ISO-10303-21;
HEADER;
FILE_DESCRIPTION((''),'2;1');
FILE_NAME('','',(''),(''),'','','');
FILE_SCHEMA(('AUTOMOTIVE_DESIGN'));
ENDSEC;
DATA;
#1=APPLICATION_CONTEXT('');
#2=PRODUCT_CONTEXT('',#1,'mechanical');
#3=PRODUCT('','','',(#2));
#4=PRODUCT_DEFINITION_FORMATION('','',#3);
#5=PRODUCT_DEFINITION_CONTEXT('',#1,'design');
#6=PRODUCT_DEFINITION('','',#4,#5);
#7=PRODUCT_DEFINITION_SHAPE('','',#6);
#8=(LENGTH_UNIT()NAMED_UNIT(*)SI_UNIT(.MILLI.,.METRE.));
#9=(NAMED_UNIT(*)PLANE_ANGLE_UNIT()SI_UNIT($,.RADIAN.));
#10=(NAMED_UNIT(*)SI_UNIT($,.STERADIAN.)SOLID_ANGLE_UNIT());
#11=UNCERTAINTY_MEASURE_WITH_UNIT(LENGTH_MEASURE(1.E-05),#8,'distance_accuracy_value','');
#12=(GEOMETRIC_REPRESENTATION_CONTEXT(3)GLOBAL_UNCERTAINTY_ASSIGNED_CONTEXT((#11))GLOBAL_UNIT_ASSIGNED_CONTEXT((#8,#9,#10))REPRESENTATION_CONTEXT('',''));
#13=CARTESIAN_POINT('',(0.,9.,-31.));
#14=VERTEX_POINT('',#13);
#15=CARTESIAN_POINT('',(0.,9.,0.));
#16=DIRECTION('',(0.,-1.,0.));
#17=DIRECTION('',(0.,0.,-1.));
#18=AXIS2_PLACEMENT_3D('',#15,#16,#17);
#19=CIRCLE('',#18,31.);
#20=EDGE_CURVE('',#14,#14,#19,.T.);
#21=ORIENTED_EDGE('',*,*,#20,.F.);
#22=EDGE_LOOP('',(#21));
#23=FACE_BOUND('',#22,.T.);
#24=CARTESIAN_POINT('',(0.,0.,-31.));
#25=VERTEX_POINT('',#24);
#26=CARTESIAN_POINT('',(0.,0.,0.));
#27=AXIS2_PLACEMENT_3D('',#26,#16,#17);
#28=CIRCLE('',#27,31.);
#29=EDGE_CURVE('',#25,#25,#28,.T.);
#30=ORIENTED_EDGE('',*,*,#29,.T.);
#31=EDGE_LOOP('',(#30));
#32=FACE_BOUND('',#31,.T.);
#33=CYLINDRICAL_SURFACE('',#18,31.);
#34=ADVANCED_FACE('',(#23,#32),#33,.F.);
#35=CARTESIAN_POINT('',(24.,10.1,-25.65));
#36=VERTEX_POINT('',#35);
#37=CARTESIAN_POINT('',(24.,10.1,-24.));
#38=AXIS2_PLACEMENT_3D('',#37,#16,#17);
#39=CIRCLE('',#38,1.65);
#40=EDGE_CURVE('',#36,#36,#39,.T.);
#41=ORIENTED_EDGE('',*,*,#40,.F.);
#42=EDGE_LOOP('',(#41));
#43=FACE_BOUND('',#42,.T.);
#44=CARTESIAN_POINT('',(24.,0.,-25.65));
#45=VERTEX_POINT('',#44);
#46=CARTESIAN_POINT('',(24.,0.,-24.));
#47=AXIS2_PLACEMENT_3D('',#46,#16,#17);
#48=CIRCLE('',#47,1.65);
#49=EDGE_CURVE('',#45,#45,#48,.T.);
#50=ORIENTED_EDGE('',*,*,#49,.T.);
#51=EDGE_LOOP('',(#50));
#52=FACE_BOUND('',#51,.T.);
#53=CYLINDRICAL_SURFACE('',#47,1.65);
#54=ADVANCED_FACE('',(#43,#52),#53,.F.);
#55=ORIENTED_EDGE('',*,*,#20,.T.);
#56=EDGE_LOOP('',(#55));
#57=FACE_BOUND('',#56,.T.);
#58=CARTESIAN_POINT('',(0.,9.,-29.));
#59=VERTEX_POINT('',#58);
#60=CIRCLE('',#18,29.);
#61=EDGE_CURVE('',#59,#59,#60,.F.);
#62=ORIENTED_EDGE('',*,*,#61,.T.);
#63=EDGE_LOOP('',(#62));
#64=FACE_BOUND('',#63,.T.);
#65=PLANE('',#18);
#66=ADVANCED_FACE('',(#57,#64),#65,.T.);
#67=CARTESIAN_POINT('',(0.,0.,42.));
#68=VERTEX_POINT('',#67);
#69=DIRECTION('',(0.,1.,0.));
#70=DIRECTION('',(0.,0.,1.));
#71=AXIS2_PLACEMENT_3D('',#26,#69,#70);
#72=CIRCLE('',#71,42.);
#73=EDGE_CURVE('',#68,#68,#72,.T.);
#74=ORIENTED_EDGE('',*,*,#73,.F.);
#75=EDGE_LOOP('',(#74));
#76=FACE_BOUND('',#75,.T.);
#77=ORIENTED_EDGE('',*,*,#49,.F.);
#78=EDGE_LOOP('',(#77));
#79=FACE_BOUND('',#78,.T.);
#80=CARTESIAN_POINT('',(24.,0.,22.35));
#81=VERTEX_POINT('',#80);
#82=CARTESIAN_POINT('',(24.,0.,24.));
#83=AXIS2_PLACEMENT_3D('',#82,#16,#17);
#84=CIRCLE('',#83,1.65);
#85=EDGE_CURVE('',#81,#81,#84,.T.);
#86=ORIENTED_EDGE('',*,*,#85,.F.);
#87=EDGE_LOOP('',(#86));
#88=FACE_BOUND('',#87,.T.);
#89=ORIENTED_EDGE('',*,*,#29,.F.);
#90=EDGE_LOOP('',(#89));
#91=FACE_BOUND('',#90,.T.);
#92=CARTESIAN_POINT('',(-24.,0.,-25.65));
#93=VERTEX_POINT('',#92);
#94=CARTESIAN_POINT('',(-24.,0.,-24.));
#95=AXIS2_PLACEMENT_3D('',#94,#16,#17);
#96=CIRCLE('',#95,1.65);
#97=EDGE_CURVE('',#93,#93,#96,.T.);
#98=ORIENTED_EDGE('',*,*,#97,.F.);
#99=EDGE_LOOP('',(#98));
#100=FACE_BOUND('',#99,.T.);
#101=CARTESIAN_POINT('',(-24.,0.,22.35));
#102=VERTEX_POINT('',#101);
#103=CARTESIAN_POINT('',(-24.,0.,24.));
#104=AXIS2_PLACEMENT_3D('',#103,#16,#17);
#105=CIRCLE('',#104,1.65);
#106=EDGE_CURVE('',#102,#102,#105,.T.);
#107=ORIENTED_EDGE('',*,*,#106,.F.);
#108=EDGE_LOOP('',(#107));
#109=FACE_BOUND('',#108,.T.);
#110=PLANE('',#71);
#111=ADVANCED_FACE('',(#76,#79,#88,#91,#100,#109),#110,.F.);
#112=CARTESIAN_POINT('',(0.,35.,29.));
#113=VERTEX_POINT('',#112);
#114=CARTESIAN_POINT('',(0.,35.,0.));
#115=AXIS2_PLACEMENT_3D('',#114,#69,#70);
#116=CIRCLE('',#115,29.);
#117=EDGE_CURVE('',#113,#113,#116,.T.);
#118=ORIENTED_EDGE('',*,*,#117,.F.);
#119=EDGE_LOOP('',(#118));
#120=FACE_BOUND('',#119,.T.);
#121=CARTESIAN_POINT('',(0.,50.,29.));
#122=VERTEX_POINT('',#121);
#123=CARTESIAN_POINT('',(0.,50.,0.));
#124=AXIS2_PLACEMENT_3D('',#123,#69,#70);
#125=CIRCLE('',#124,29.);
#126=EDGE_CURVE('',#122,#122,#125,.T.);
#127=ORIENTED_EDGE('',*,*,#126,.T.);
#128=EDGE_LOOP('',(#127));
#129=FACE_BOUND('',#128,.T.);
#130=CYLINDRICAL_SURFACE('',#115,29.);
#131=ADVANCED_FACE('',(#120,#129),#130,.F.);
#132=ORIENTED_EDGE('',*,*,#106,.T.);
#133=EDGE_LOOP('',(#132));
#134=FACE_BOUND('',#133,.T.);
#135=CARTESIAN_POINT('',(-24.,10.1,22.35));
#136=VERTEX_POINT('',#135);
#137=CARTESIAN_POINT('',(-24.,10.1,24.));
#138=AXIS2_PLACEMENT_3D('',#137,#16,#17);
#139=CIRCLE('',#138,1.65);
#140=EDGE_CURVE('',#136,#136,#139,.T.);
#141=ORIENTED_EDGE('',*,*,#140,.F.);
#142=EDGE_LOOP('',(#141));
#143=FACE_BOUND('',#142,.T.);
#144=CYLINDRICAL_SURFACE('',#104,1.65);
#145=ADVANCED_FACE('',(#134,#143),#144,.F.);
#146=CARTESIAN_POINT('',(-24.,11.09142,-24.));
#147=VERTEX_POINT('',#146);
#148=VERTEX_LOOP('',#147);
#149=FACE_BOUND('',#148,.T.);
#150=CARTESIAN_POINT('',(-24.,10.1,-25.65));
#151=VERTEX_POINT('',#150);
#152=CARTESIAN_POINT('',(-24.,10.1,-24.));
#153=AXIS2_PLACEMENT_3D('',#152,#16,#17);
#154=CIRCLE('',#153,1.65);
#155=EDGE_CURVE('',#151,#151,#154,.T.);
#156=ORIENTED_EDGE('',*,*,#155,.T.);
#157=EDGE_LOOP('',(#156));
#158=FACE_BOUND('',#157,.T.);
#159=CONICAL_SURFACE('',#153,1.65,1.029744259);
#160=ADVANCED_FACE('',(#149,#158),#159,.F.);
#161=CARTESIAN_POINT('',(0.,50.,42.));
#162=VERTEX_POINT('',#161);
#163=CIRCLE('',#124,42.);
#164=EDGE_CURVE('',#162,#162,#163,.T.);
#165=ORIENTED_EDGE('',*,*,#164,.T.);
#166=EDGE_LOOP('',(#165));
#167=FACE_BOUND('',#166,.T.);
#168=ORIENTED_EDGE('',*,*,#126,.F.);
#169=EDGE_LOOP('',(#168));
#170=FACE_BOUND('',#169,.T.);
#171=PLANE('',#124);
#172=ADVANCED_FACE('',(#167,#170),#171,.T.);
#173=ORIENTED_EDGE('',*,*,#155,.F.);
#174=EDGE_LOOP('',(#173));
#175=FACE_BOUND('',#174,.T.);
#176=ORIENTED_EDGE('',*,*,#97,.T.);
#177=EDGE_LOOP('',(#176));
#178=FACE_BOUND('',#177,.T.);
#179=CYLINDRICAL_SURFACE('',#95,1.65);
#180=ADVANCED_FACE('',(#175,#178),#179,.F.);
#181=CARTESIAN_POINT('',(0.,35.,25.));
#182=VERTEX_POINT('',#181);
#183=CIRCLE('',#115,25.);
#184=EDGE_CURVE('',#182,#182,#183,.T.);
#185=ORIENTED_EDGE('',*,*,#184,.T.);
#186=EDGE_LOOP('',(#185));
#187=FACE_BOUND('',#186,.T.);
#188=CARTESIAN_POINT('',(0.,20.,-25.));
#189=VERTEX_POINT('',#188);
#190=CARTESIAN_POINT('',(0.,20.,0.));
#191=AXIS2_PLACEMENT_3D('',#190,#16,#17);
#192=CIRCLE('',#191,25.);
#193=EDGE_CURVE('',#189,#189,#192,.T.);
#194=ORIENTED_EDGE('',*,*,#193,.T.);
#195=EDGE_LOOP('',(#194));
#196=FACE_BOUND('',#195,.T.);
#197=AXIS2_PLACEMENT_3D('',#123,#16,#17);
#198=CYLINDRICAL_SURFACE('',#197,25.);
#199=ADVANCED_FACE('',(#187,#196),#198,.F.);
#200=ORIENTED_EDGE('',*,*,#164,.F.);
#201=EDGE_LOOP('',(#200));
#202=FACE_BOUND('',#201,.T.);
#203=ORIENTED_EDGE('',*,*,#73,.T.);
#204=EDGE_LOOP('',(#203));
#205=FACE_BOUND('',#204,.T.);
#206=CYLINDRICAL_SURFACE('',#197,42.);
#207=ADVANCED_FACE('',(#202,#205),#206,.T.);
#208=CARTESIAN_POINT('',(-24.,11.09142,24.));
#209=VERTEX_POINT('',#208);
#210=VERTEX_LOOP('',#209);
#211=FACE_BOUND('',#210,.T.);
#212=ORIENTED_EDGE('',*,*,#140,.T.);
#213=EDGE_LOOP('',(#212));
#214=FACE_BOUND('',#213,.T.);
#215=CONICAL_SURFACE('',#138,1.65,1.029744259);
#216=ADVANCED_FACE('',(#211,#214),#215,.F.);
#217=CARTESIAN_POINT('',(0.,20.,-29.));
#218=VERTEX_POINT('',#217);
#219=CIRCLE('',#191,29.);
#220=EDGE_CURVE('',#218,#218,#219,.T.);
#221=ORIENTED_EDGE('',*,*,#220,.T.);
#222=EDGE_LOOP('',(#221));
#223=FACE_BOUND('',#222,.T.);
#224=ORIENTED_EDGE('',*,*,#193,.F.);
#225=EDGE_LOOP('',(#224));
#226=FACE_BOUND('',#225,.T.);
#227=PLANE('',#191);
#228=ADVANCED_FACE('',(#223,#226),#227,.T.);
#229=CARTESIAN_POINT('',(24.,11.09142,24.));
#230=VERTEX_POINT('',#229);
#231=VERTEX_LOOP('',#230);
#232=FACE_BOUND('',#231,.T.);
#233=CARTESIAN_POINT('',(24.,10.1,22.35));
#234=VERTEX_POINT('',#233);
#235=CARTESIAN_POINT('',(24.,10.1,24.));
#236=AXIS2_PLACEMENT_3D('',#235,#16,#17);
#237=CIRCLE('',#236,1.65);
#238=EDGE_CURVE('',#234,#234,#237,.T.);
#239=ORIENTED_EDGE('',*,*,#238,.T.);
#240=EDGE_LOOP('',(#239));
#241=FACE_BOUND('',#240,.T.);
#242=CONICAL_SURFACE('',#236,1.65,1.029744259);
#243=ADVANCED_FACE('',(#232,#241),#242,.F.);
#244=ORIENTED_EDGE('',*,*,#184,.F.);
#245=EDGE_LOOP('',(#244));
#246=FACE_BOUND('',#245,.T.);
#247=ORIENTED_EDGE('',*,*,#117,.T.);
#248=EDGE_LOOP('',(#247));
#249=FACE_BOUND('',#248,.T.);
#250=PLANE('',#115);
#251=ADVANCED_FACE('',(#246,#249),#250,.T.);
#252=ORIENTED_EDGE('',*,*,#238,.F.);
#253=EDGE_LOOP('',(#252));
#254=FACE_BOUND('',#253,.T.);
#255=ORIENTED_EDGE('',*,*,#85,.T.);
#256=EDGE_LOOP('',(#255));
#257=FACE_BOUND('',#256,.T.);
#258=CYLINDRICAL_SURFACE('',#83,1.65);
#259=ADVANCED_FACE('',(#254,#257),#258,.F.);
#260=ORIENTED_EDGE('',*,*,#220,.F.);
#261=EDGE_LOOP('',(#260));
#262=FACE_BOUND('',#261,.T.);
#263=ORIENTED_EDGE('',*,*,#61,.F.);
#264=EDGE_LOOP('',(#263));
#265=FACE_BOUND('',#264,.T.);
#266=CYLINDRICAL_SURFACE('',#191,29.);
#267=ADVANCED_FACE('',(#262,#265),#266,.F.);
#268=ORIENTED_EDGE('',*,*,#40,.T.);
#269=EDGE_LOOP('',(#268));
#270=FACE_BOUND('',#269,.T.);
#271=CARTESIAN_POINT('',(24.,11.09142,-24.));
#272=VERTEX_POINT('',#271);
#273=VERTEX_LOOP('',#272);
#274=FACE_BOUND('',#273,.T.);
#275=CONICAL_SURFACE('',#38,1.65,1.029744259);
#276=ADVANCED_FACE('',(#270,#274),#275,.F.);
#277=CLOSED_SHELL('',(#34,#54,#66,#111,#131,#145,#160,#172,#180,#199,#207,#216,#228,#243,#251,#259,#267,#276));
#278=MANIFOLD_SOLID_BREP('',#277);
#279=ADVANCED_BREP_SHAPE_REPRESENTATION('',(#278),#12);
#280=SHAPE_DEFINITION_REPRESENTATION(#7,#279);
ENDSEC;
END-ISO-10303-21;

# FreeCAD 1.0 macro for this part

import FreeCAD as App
import Part
import Sketcher
from FreeCAD import Vector
Q = App.Units.Quantity

doc = App.newDocument("Part")
body = doc.addObject("PartDesign::Body", "Body")

sketch1 = body.newObject("Sketcher::SketchObject", "Sketch")
sketch1.AttachmentSupport = (doc.getObject("XZ_Plane"), [""])
sketch1.MapMode = "FlatFace"
sketch1.addGeometry([
    Part.Circle(Vector(0, 0, 0), Vector(0, 0, 1), 42),
    Part.Circle(Vector(0, 0, 0), Vector(0, 0, 1), 25),
], False)
sketch1.addConstraint([
    Sketcher.Constraint("Coincident", 0, 3, -1, 1),
    Sketcher.Constraint("Coincident", 1, 3, -1, 1),
    Sketcher.Constraint("Diameter", 0, Q("84 mm")),
    Sketcher.Constraint("Diameter", 1, Q("50 mm")),
])
pad1 = body.newObject("PartDesign::Pad", "Pad")
pad1.Profile = sketch1
pad1.Length = 50
pad1.Reversed = True

sketch2 = body.newObject("Sketcher::SketchObject", "Sketch001")
sketch2.AttachmentSupport = (doc.getObject("XZ_Plane"), [""])
sketch2.MapMode = "FlatFace"
sketch2.AttachmentOffset = App.Placement(Vector(0, 0, -50), App.Rotation())
sketch2.addGeometry(Part.Circle(Vector(0, 0, 0), Vector(0, 0, 1), 29), False)
sketch2.addConstraint([
    Sketcher.Constraint("Coincident", 0, 3, -1, 1),
    Sketcher.Constraint("Diameter", 0, Q("58 mm")),
])
pocket1 = body.newObject("PartDesign::Pocket", "Pocket")
pocket1.Profile = sketch2
pocket1.Length = 15
pocket1.Reversed = True

sketch3 = body.newObject("Sketcher::SketchObject", "Sketch002")
sketch3.AttachmentSupport = (doc.getObject("XZ_Plane"), [""])
sketch3.MapMode = "FlatFace"
sketch3.AttachmentOffset = App.Placement(Vector(0, 0, -20), App.Rotation())
sketch3.addGeometry(Part.Circle(Vector(0, 0, 0), Vector(0, 0, 1), 29), False)
sketch3.addConstraint([
    Sketcher.Constraint("Coincident", 0, 3, -1, 1),
    Sketcher.Constraint("Diameter", 0, Q("58 mm")),
])
pocket2 = body.newObject("PartDesign::Pocket", "Pocket001")
pocket2.Profile = sketch3
pocket2.Length = 20
pocket2.Reversed = True

sketch4 = body.newObject("Sketcher::SketchObject", "Sketch003")
sketch4.AttachmentSupport = (doc.getObject("XZ_Plane"), [""])
sketch4.MapMode = "FlatFace"
sketch4.addGeometry(Part.Circle(Vector(0, 0, 0), Vector(0, 0, 1), 31), False)
sketch4.addConstraint([
    Sketcher.Constraint("Coincident", 0, 3, -1, 1),
    Sketcher.Constraint("Diameter", 0, Q("62 mm")),
])
pocket3 = body.newObject("PartDesign::Pocket", "Pocket002")
pocket3.Profile = sketch4
pocket3.Length = 9

sketch5 = body.newObject("Sketcher::SketchObject", "Sketch004")
sketch5.AttachmentSupport = (doc.getObject("XZ_Plane"), [""])
sketch5.MapMode = "FlatFace"
sketch5.addGeometry([
    Part.Circle(Vector(-24, 24, 0), Vector(0, 0, 1), 1.65),
    Part.Circle(Vector(24, 24, 0), Vector(0, 0, 1), 1.65),
    Part.Circle(Vector(-24, -24, 0), Vector(0, 0, 1), 1.65),
    Part.Circle(Vector(24, -24, 0), Vector(0, 0, 1), 1.65),
], False)
sketch5.addConstraint([
    Sketcher.Constraint("Equal", 0, 1),
    Sketcher.Constraint("Equal", 1, 2),
    Sketcher.Constraint("Equal", 2, 3),
    Sketcher.Constraint("Symmetric", 1, 3, 2, 3, -1, 1),
    Sketcher.Constraint("Symmetric", 0, 3, 3, 3, -1, 1),
    Sketcher.Constraint("Symmetric", 0, 3, 1, 3, -2),
    Sketcher.Constraint("Diameter", 0, Q("3.3 mm")),
    Sketcher.Constraint("DistanceX", 0, 3, -1, 1, Q("24 mm")),
    Sketcher.Constraint("DistanceY", -1, 1, 0, 3, Q("24 mm")),
])
doc.recompute()
hole = body.newObject("PartDesign::Hole", "Hole")
hole.Profile = sketch5
hole.ThreadType = "None"
hole.Diameter = 3.3
hole.DepthType = "Dimension"
hole.Depth = 10.1
hole.DrillPoint = "Angled"
hole.DrillPointAngle = 118

doc.recompute()
